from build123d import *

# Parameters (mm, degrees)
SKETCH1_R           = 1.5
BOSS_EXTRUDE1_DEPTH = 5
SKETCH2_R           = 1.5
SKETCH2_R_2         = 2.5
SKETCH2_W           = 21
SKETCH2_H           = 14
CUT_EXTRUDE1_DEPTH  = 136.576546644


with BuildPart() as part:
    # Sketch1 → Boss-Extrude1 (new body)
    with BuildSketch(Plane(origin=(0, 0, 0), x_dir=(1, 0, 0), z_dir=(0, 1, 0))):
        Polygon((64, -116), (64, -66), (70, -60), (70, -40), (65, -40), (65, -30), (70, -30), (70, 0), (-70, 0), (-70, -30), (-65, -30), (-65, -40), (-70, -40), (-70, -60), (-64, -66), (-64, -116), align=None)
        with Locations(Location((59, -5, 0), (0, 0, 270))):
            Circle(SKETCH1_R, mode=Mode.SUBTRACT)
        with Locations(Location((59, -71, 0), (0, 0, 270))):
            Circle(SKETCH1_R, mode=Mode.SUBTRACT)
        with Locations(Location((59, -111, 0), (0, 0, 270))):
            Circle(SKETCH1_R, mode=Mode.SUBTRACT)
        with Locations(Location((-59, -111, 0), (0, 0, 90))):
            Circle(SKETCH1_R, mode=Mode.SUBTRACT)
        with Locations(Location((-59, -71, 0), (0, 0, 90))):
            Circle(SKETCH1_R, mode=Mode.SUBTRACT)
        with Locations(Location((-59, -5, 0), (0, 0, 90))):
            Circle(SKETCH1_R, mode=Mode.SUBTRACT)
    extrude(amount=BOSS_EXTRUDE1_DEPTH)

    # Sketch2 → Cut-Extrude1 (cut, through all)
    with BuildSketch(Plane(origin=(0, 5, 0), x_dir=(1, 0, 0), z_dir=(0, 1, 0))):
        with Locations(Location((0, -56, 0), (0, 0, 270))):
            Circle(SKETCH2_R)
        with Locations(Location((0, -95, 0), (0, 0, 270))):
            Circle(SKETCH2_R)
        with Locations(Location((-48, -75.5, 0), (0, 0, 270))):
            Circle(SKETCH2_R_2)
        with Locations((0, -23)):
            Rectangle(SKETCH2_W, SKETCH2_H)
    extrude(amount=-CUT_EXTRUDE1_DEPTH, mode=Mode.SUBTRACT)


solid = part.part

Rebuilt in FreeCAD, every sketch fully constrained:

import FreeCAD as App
import Part
import Sketcher
from FreeCAD import Vector

doc = App.newDocument("Part")
params = doc.addObject("Spreadsheet::Sheet", "Params")
for row, (alias, value) in enumerate([
    ("sketch1_diameter", "3 mm"),
    ("sketch1_width", "5 mm"),
    ("sketch1_width2", "140 mm"),
    ("sketch1_width3", "128 mm"),
    ("sketch1_height", "50 mm"),
    ("pad1_length", "5 mm"),
    ("sketch2_diameter", "3 mm"),
    ("sketch2_diameter2", "5 mm"),
    ("sketch2_width", "21 mm"),
    ("sketch2_height", "14 mm"),
], start=1):
    params.set(f"A{row}", alias)
    params.set(f"B{row}", "=" + value)
    params.setAlias(f"B{row}", alias)

body = doc.addObject("PartDesign::Body", "Body")

# Sketch on XZ plane
sketch1 = body.newObject("Sketcher::SketchObject", "Sketch")
sketch1.AttachmentSupport = (doc.getObject("XZ_Plane"), [""])
sketch1.MapMode = "FlatFace"
sketch1.addGeometry([
    Part.LineSegment(Vector(64, 116, 0), Vector(64, 66, 0)),  # 0
    Part.LineSegment(Vector(64, 66, 0), Vector(70, 60, 0)),  # 1
    Part.LineSegment(Vector(70, 60, 0), Vector(70, 40, 0)),  # 2
    Part.LineSegment(Vector(70, 40, 0), Vector(65, 40, 0)),  # 3
    Part.LineSegment(Vector(65, 40, 0), Vector(65, 30, 0)),  # 4
    Part.LineSegment(Vector(65, 30, 0), Vector(70, 30, 0)),  # 5
    Part.LineSegment(Vector(70, 30, 0), Vector(70, 0, 0)),  # 6
    Part.LineSegment(Vector(70, 0, 0), Vector(-70, 0, 0)),  # 7
    Part.LineSegment(Vector(-70, 0, 0), Vector(-70, 30, 0)),  # 8
    Part.LineSegment(Vector(-70, 30, 0), Vector(-65, 30, 0)),  # 9
    Part.LineSegment(Vector(-65, 30, 0), Vector(-65, 40, 0)),  # 10
    Part.LineSegment(Vector(-65, 40, 0), Vector(-70, 40, 0)),  # 11
    Part.LineSegment(Vector(-70, 40, 0), Vector(-70, 60, 0)),  # 12
    Part.LineSegment(Vector(-70, 60, 0), Vector(-64, 66, 0)),  # 13
    Part.LineSegment(Vector(-64, 66, 0), Vector(-64, 116, 0)),  # 14
    Part.LineSegment(Vector(-64, 116, 0), Vector(64, 116, 0)),  # 15
    Part.Circle(Vector(-59, 111, 0), Vector(0, 0, 1), 1.5),  # 16
    Part.Circle(Vector(-59, 71, 0), Vector(0, 0, 1), 1.5),  # 17
    Part.Circle(Vector(59, 111, 0), Vector(0, 0, 1), 1.5),  # 18
    Part.Circle(Vector(59, 71, 0), Vector(0, 0, 1), 1.5),  # 19
    Part.Circle(Vector(-59, 5, 0), Vector(0, 0, 1), 1.5),  # 20
    Part.Circle(Vector(59, 5, 0), Vector(0, 0, 1), 1.5),  # 21
], False)
sketch1.addConstraint([
    Sketcher.Constraint("Coincident", 0, 2, 1, 1),
    Sketcher.Constraint("Coincident", 1, 2, 2, 1),
    Sketcher.Constraint("Coincident", 2, 2, 3, 1),
    Sketcher.Constraint("Coincident", 3, 2, 4, 1),
    Sketcher.Constraint("Coincident", 4, 2, 5, 1),
    Sketcher.Constraint("Coincident", 5, 2, 6, 1),
    Sketcher.Constraint("Coincident", 6, 2, 7, 1),
    Sketcher.Constraint("Coincident", 7, 2, 8, 1),
    Sketcher.Constraint("Coincident", 8, 2, 9, 1),
    Sketcher.Constraint("Coincident", 9, 2, 10, 1),
    Sketcher.Constraint("Coincident", 10, 2, 11, 1),
    Sketcher.Constraint("Coincident", 11, 2, 12, 1),
    Sketcher.Constraint("Coincident", 12, 2, 13, 1),
    Sketcher.Constraint("Coincident", 13, 2, 14, 1),
    Sketcher.Constraint("Coincident", 14, 2, 15, 1),
    Sketcher.Constraint("Coincident", 15, 2, 0, 1),
    Sketcher.Constraint("Vertical", 0),
    Sketcher.Constraint("Vertical", 2),
    Sketcher.Constraint("Horizontal", 3),
    Sketcher.Constraint("Vertical", 4),
    Sketcher.Constraint("Horizontal", 5),
    Sketcher.Constraint("Vertical", 6),
    Sketcher.Constraint("Horizontal", 7),
    Sketcher.Constraint("Vertical", 8),
    Sketcher.Constraint("Horizontal", 9),
    Sketcher.Constraint("Vertical", 10),
    Sketcher.Constraint("Horizontal", 11),
    Sketcher.Constraint("Vertical", 12),
    Sketcher.Constraint("Vertical", 14),
    Sketcher.Constraint("Horizontal", 15),
    Sketcher.Constraint("Equal", 16, 17),
    Sketcher.Constraint("Equal", 17, 18),
    Sketcher.Constraint("Equal", 18, 19),
    Sketcher.Constraint("Equal", 19, 20),
    Sketcher.Constraint("Equal", 20, 21),
    Sketcher.Constraint("Symmetric", 6, 2, 7, 2, -1, 1),
    Sketcher.Constraint("Symmetric", 16, 3, 18, 3, -2),
    Sketcher.Constraint("Symmetric", 17, 3, 19, 3, -2),
    Sketcher.Constraint("Symmetric", 20, 3, 21, 3, -2),
    Sketcher.Constraint("Symmetric", 4, 2, 9, 2, -2),
    Sketcher.Constraint("Symmetric", 2, 2, 11, 2, -2),
    Sketcher.Constraint("Symmetric", 0, 2, 13, 2, -2),
    Sketcher.Constraint("Perpendicular", 1, 13),
    Sketcher.Constraint("Horizontal", 1, 2, 12, 2),
    Sketcher.Constraint("Vertical", 16, 3, 17, 3),
    Sketcher.Constraint("Vertical", 17, 3, 20, 3),
    Sketcher.Constraint("Vertical", 2, 2, 5, 2),
    Sketcher.Constraint("Diameter", 16, 3.0),
    Sketcher.Constraint("DistanceX", 3, 2, 3, 1, 5.0),
    Sketcher.Constraint("DistanceX", 7, 2, 7, 1, 140.0),
    Sketcher.Constraint("DistanceX", 15, 1, 15, 2, 128.0),
    Sketcher.Constraint("DistanceY", 0, 2, 0, 1, 50.0),
    Sketcher.Constraint("DistanceY", 2, 2, 2, 1, 20.0),
    Sketcher.Constraint("DistanceY", 4, 2, 4, 1, 10.0),
    Sketcher.Constraint("DistanceY", 6, 2, 6, 1, 30.0),
    Sketcher.Constraint("DistanceX", 16, 3, -1, 1, 59.0),
    Sketcher.Constraint("DistanceY", -1, 1, 16, 3, 111.0),
    Sketcher.Constraint("DistanceY", -1, 1, 17, 3, 71.0),
    Sketcher.Constraint("DistanceY", -1, 1, 20, 3, 5.0),
])
sketch1.setExpression("Constraints[47]", "Params.sketch1_diameter")
sketch1.setExpression("Constraints[48]", "Params.sketch1_width")
sketch1.setExpression("Constraints[49]", "Params.sketch1_width2")
sketch1.setExpression("Constraints[50]", "Params.sketch1_width3")
sketch1.setExpression("Constraints[51]", "Params.sketch1_height")
pad1 = body.newObject("PartDesign::Pad", "Pad")
pad1.Profile = sketch1
pad1.setExpression("Length", "Params.pad1_length")
pad1.Reversed = True

# Sketch on XZ plane
sketch2 = body.newObject("Sketcher::SketchObject", "Sketch001")
sketch2.AttachmentSupport = (doc.getObject("XZ_Plane"), [""])
sketch2.MapMode = "FlatFace"
sketch2.AttachmentOffset = App.Placement(Vector(0, 0, -5), App.Rotation())
sketch2.addGeometry([
    Part.Circle(Vector(0, 56, 0), Vector(0, 0, 1), 1.5),  # 0
    Part.Circle(Vector(0, 95, 0), Vector(0, 0, 1), 1.5),  # 1
    Part.Circle(Vector(-48, 75.5, 0), Vector(0, 0, 1), 2.5),  # 2
    Part.LineSegment(Vector(-10.5, 16, 0), Vector(-10.5, 30, 0)),  # 3
    Part.LineSegment(Vector(-10.5, 30, 0), Vector(10.5, 30, 0)),  # 4
    Part.LineSegment(Vector(10.5, 30, 0), Vector(10.5, 16, 0)),  # 5
    Part.LineSegment(Vector(10.5, 16, 0), Vector(-10.5, 16, 0)),  # 6
], False)
sketch2.addConstraint([
    Sketcher.Constraint("Coincident", 3, 2, 4, 1),
    Sketcher.Constraint("Coincident", 4, 2, 5, 1),
    Sketcher.Constraint("Coincident", 5, 2, 6, 1),
    Sketcher.Constraint("Coincident", 6, 2, 3, 1),
    Sketcher.Constraint("Vertical", 3),
    Sketcher.Constraint("Horizontal", 4),
    Sketcher.Constraint("Vertical", 5),
    Sketcher.Constraint("Horizontal", 6),
    Sketcher.Constraint("Equal", 0, 1),
    Sketcher.Constraint("PointOnObject", 0, 3, -2),
    Sketcher.Constraint("PointOnObject", 1, 3, -2),
    Sketcher.Constraint("Diameter", 0, 3.0),
    Sketcher.Constraint("Diameter", 2, 5.0),
    Sketcher.Constraint("DistanceX", 4, 1, 4, 2, 21.0),
    Sketcher.Constraint("DistanceY", 3, 1, 3, 2, 14.0),
    Sketcher.Constraint("DistanceY", -1, 1, 0, 3, 56.0),
    Sketcher.Constraint("DistanceY", -1, 1, 1, 3, 95.0),
    Sketcher.Constraint("DistanceX", 2, 3, -1, 1, 48.0),
    Sketcher.Constraint("DistanceY", -1, 1, 3, 2, 30.0),
    Sketcher.Constraint("DistanceY", -1, 1, 2, 3, 75.5),
    Sketcher.Constraint("DistanceX", 3, 2, -1, 1, 10.5),
])
sketch2.setExpression("Constraints[11]", "Params.sketch2_diameter")
sketch2.setExpression("Constraints[12]", "Params.sketch2_diameter2")
sketch2.setExpression("Constraints[13]", "Params.sketch2_width")
sketch2.setExpression("Constraints[14]", "Params.sketch2_height")
pocket1 = body.newObject("PartDesign::Pocket", "Pocket")
pocket1.Profile = sketch2
pocket1.Type = "ThroughAll"
pocket1.Reversed = True

doc.recompute()
